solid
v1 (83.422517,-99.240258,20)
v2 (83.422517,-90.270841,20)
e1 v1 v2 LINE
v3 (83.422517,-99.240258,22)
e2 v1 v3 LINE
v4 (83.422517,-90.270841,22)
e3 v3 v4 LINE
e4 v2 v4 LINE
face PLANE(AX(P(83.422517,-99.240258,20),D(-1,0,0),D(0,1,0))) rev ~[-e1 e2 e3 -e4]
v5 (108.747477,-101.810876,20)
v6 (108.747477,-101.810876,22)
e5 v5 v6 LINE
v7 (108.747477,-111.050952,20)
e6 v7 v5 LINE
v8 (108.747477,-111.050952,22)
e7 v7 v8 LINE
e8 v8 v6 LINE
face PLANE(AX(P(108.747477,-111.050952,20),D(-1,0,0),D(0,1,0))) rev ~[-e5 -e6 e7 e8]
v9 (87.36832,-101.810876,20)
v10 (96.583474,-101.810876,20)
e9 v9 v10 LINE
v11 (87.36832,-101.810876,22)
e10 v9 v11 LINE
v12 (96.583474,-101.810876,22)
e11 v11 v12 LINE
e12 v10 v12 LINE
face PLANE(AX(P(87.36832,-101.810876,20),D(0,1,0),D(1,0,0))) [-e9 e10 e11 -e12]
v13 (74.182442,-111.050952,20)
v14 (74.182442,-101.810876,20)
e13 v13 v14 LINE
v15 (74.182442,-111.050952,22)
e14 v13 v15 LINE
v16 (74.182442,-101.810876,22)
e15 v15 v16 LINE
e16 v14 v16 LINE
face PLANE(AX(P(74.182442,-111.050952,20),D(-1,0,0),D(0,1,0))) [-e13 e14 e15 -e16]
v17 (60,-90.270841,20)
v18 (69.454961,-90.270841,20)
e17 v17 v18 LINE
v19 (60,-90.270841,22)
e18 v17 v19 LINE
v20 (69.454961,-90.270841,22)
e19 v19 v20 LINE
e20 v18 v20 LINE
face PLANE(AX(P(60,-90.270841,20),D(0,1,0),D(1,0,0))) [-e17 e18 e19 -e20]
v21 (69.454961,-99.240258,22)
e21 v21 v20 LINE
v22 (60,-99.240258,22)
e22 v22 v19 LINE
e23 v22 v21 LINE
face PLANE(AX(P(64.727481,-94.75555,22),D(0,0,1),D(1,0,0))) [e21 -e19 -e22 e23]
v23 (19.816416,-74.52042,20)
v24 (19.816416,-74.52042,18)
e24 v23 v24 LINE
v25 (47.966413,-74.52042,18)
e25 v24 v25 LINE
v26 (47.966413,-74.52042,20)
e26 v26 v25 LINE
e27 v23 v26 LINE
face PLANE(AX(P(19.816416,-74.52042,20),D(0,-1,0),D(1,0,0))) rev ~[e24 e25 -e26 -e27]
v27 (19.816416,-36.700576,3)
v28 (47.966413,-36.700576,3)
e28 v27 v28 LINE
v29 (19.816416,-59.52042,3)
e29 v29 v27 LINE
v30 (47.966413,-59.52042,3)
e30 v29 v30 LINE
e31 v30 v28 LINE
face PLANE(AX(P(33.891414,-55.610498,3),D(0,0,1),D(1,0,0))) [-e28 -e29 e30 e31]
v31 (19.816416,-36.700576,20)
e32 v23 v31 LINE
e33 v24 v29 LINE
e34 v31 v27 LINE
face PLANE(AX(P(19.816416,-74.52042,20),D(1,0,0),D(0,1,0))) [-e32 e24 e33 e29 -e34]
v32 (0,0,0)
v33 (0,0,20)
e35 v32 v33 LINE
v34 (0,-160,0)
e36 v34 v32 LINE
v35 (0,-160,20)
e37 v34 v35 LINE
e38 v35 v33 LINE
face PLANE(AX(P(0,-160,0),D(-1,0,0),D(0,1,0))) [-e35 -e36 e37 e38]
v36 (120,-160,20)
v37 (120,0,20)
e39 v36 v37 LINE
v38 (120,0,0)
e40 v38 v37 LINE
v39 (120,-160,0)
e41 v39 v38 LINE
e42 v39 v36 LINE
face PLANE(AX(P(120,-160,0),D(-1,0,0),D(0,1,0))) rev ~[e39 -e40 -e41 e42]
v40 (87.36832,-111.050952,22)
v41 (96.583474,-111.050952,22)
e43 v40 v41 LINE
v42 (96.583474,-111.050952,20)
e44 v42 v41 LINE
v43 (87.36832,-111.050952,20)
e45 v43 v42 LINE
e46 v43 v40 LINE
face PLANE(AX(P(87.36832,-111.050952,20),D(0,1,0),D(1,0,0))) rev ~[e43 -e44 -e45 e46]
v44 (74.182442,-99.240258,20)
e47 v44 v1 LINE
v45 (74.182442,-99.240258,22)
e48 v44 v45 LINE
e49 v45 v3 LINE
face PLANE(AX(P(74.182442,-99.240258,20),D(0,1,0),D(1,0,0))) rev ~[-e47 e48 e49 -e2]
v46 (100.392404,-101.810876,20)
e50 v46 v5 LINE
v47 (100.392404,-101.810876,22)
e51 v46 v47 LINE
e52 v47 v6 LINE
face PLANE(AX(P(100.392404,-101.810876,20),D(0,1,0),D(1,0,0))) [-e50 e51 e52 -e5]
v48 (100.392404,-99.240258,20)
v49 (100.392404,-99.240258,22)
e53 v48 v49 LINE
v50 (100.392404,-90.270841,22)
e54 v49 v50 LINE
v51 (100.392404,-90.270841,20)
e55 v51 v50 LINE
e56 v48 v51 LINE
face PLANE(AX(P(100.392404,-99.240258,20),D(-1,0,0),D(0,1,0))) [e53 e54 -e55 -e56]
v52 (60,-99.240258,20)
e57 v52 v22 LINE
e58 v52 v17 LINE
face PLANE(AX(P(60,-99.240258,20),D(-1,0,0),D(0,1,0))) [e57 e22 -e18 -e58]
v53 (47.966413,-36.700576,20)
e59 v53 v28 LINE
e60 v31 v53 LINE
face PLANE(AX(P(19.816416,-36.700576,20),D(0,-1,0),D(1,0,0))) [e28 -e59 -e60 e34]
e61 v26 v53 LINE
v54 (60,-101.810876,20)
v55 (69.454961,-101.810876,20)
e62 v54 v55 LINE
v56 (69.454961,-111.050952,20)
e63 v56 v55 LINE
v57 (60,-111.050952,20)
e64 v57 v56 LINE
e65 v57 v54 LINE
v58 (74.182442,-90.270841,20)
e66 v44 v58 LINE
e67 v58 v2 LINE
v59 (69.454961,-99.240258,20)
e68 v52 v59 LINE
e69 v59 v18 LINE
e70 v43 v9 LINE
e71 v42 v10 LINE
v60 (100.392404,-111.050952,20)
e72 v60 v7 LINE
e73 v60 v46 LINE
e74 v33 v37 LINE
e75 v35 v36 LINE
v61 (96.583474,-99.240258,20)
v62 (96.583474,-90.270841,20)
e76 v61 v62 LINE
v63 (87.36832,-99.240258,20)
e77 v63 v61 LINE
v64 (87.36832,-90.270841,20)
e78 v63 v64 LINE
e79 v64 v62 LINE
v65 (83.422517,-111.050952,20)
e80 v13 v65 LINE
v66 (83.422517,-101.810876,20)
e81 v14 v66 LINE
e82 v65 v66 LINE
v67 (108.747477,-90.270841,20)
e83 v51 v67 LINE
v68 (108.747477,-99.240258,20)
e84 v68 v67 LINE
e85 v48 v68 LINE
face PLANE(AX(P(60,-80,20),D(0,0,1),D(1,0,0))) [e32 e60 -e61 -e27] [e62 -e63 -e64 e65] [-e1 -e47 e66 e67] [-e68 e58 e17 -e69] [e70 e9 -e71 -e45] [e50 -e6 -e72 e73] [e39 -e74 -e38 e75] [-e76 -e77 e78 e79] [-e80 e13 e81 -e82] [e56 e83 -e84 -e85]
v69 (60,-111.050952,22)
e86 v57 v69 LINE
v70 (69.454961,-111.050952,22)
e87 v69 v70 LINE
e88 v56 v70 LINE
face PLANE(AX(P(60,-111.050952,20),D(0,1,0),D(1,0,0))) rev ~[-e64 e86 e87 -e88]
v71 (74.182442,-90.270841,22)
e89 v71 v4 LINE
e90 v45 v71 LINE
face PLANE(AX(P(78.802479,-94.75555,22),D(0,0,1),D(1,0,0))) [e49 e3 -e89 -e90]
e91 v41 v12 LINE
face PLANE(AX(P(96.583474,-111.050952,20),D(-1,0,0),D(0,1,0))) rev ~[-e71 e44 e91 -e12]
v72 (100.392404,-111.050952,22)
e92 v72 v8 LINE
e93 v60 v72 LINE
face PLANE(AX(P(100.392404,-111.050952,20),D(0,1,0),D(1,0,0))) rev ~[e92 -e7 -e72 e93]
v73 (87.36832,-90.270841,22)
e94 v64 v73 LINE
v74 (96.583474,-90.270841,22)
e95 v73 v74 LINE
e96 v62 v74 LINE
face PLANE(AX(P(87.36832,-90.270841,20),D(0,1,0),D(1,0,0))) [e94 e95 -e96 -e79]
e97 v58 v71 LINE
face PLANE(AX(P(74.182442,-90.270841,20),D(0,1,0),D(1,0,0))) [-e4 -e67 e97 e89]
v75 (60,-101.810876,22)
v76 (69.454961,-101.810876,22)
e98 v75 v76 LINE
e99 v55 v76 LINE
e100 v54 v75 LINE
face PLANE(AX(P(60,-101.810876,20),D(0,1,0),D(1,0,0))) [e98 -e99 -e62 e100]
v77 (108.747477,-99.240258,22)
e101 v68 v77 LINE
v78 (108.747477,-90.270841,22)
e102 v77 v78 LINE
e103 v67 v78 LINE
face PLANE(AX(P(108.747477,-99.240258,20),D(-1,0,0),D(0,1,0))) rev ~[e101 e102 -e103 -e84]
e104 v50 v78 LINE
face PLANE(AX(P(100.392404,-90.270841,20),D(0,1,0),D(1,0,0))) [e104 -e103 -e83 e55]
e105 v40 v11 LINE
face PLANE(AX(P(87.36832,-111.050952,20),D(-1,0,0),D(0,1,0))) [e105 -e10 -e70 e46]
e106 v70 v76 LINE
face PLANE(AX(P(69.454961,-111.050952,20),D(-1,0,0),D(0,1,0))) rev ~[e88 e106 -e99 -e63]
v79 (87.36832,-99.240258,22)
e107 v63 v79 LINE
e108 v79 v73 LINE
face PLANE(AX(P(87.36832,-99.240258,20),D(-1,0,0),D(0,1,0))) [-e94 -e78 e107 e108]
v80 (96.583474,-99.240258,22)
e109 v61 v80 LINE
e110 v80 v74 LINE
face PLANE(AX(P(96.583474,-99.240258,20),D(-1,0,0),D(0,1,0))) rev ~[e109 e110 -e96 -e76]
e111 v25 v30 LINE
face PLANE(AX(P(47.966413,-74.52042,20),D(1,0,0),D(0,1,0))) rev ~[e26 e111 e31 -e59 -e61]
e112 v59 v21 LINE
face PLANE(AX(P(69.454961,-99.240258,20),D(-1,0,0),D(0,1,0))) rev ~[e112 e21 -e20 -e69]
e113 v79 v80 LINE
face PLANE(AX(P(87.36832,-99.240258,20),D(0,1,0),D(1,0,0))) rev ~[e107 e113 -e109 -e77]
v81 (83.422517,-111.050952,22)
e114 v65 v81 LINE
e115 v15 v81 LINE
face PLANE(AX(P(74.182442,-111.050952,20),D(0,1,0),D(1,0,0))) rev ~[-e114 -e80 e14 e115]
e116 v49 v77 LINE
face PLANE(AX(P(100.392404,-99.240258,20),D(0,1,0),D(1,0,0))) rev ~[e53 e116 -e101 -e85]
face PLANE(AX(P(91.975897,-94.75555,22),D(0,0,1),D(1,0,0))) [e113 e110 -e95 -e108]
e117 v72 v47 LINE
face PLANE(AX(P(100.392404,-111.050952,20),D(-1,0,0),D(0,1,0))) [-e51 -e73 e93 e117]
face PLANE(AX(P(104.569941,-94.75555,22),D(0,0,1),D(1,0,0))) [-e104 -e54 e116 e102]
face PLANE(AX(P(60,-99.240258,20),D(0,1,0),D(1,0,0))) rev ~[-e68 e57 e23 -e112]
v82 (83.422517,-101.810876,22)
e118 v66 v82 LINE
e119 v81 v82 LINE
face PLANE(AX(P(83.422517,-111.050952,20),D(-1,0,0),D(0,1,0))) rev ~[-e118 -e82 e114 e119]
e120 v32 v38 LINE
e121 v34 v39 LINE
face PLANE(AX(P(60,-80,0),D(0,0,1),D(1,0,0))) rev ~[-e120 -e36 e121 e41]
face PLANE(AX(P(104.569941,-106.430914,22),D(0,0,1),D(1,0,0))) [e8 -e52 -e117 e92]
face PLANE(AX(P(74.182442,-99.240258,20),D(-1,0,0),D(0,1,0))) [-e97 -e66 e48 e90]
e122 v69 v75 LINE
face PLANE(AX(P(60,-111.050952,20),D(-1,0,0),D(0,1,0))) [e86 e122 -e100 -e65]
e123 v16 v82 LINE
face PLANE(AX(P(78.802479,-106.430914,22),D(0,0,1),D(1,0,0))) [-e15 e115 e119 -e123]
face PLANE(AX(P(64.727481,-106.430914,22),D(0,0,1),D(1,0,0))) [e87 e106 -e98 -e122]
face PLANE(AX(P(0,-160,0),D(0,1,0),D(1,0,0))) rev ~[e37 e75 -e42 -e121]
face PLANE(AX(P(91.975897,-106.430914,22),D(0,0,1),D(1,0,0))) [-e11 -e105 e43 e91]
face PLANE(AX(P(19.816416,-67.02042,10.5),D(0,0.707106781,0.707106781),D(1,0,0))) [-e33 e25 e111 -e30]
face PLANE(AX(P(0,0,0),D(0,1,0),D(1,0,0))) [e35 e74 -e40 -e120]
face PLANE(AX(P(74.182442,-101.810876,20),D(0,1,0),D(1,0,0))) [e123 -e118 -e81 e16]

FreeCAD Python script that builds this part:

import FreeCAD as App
import Part
import Sketcher


def edges_at(feature, points):
    """Names of the edges that pass closest to the given points."""
    edges = feature.Shape.Edges
    near = lambda p: min(range(len(edges)), key=lambda i: edges[i].distToShape(Part.Vertex(*p))[0])
    return sorted({f"Edge{near(p) + 1}" for p in points})


def add_polygon(sketch, points):
    """Adds a closed chain of lines whose ends are joined by coincident constraints."""
    first, n = sketch.GeometryCount, len(points)
    for a, b in zip(points, points[1:] + points[:1]):
        sketch.addGeometry(Part.LineSegment(App.Vector(*a, 0), App.Vector(*b, 0)), False)
    for i in range(n):
        sketch.addConstraint(Sketcher.Constraint("Coincident", first + i, 2, first + (i + 1) % n, 1))

doc = App.newDocument("Part")
body = doc.addObject("PartDesign::Body", "Body")

# Sketch on XY plane
sketch1 = body.newObject("Sketcher::SketchObject", "Sketch")
sketch1.AttachmentSupport = (doc.getObject("XY_Plane"), [""])
sketch1.MapMode = "FlatFace"
add_polygon(sketch1, [(0, 0), (0, -160), (120, -160), (120, 0)])  # lines 0-3
sketch1.addConstraint([
    Sketcher.Constraint("Vertical", 0),
    Sketcher.Constraint("Horizontal", 1),
    Sketcher.Constraint("Vertical", 2),
    Sketcher.Constraint("Horizontal", 3),
    Sketcher.Constraint("Coincident", 3, 2, -1, 1),
    Sketcher.Constraint("DistanceX", 1, 1, 1, 2, 120.0),
    Sketcher.Constraint("DistanceY", 0, 2, 0, 1, 160.0),
])
pad1 = body.newObject("PartDesign::Pad", "Pad")
pad1.Profile = sketch1
pad1.Length = 20

# Sketch on XY plane
sketch2 = body.newObject("Sketcher::SketchObject", "Sketch001")
sketch2.AttachmentSupport = (doc.getObject("XY_Plane"), [""])
sketch2.MapMode = "FlatFace"
sketch2.AttachmentOffset = App.Placement(App.Vector(0, 0, 20), App.Rotation())
add_polygon(sketch2, [(19.816416, -36.700576), (19.816416, -74.52042), (47.966413, -74.52042), (47.966413, -36.700576)])  # lines 0-3
sketch2.addConstraint([
    Sketcher.Constraint("Vertical", 0),
    Sketcher.Constraint("Horizontal", 1),
    Sketcher.Constraint("Vertical", 2),
    Sketcher.Constraint("Horizontal", 3),
    Sketcher.Constraint("DistanceX", 1, 1, 1, 2, 28.149998),
    Sketcher.Constraint("DistanceY", 0, 2, 0, 1, 37.819844),
    Sketcher.Constraint("DistanceY", 0, 2, -1, 1, 74.52042),
    Sketcher.Constraint("DistanceX", -1, 1, 0, 2, 19.816416),
])
pocket1 = body.newObject("PartDesign::Pocket", "Pocket")
pocket1.Profile = sketch2
pocket1.Length = 17
doc.recompute()

chamfer = body.newObject("PartDesign::Chamfer", "Chamfer")
chamfer.Base = (pocket1, edges_at(pocket1, [(33.891, -74.52, 3)]))
chamfer.Size = 15

# Sketch on XY plane
sketch3 = body.newObject("Sketcher::SketchObject", "Sketch002")
sketch3.AttachmentSupport = (doc.getObject("XY_Plane"), [""])
sketch3.MapMode = "FlatFace"
sketch3.AttachmentOffset = App.Placement(App.Vector(0, 0, 20), App.Rotation())
add_polygon(sketch3, [(60, -101.810876), (60, -111.050952), (69.454961, -111.050952), (69.454961, -101.810876)])  # lines 0-3
add_polygon(sketch3, [(74.182442, -101.810876), (74.182442, -111.050952), (83.422517, -111.050952), (83.422517, -101.810876)])  # lines 4-7
add_polygon(sketch3, [(87.36832, -101.810876), (87.36832, -111.050952), (96.583474, -111.050952), (96.583474, -101.810876)])  # lines 8-11
add_polygon(sketch3, [(100.392404, -101.810876), (100.392404, -111.050952), (108.747477, -111.050952), (108.747477, -101.810876)])  # lines 12-15
add_polygon(sketch3, [(60, -90.270841), (60, -99.240258), (69.454961, -99.240258), (69.454961, -90.270841)])  # lines 16-19
add_polygon(sketch3, [(74.182442, -90.270841), (74.182442, -99.240258), (83.422517, -99.240258), (83.422517, -90.270841)])  # lines 20-23
add_polygon(sketch3, [(87.36832, -90.270841), (87.36832, -99.240258), (96.583474, -99.240258), (96.583474, -90.270841)])  # lines 24-27
add_polygon(sketch3, [(100.392404, -90.270841), (100.392404, -99.240258), (108.747477, -99.240258), (108.747477, -90.270841)])  # lines 28-31
sketch3.addConstraint([
    Sketcher.Constraint("Vertical", 0),
    Sketcher.Constraint("Horizontal", 1),
    Sketcher.Constraint("Vertical", 2),
    Sketcher.Constraint("Horizontal", 3),
    Sketcher.Constraint("Vertical", 4),
    Sketcher.Constraint("Horizontal", 5),
    Sketcher.Constraint("Vertical", 6),
    Sketcher.Constraint("Horizontal", 7),
    Sketcher.Constraint("Vertical", 8),
    Sketcher.Constraint("Horizontal", 9),
    Sketcher.Constraint("Vertical", 10),
    Sketcher.Constraint("Horizontal", 11),
    Sketcher.Constraint("Vertical", 12),
    Sketcher.Constraint("Horizontal", 13),
    Sketcher.Constraint("Vertical", 14),
    Sketcher.Constraint("Horizontal", 15),
    Sketcher.Constraint("Vertical", 16),
    Sketcher.Constraint("Horizontal", 17),
    Sketcher.Constraint("Vertical", 18),
    Sketcher.Constraint("Horizontal", 19),
    Sketcher.Constraint("Vertical", 20),
    Sketcher.Constraint("Horizontal", 21),
    Sketcher.Constraint("Vertical", 22),
    Sketcher.Constraint("Horizontal", 23),
    Sketcher.Constraint("Vertical", 24),
    Sketcher.Constraint("Horizontal", 25),
    Sketcher.Constraint("Vertical", 26),
    Sketcher.Constraint("Horizontal", 27),
    Sketcher.Constraint("Vertical", 28),
    Sketcher.Constraint("Horizontal", 29),
    Sketcher.Constraint("Vertical", 30),
    Sketcher.Constraint("Horizontal", 31),
    Sketcher.Constraint("Horizontal", 1, 2, 4, 2),
    Sketcher.Constraint("Horizontal", 3, 2, 6, 2),
    Sketcher.Constraint("Horizontal", 5, 2, 8, 2),
    Sketcher.Constraint("Horizontal", 7, 2, 10, 2),
    Sketcher.Constraint("Horizontal", 9, 2, 12, 2),
    Sketcher.Constraint("Horizontal", 11, 2, 14, 2),
    Sketcher.Constraint("Horizontal", 17, 2, 20, 2),
    Sketcher.Constraint("Horizontal", 19, 2, 22, 2),
    Sketcher.Constraint("Horizontal", 21, 2, 24, 2),
    Sketcher.Constraint("Horizontal", 23, 2, 26, 2),
    Sketcher.Constraint("Horizontal", 25, 2, 28, 2),
    Sketcher.Constraint("Horizontal", 27, 2, 30, 2),
    Sketcher.Constraint("Vertical", 3, 2, 16, 2),
    Sketcher.Constraint("Vertical", 2, 2, 17, 2),
    Sketcher.Constraint("Vertical", 7, 2, 20, 2),
    Sketcher.Constraint("Vertical", 6, 2, 21, 2),
    Sketcher.Constraint("Vertical", 11, 2, 24, 2),
    Sketcher.Constraint("Vertical", 10, 2, 25, 2),
    Sketcher.Constraint("Vertical", 15, 2, 28, 2),
    Sketcher.Constraint("Vertical", 14, 2, 29, 2),
    Sketcher.Constraint("Equal", 23, 0),
    Sketcher.Constraint("DistanceX", -1, 1, 0, 2, 60.0),
    Sketcher.Constraint("DistanceX", 1, 1, 1, 2, 9.454961),
    Sketcher.Constraint("DistanceX", 5, 1, 5, 2, 9.240076),
    Sketcher.Constraint("DistanceX", 9, 1, 9, 2, 9.215154),
    Sketcher.Constraint("DistanceX", 13, 1, 13, 2, 8.355073),
    Sketcher.Constraint("DistanceY", 16, 2, 16, 1, 8.969417),
    Sketcher.Constraint("DistanceY", 0, 2, -1, 1, 111.050952),
    Sketcher.Constraint("DistanceX", -1, 1, 4, 2, 74.182442),
    Sketcher.Constraint("DistanceX", -1, 1, 8, 2, 87.36832),
    Sketcher.Constraint("DistanceY", 16, 2, -1, 1, 99.240258),
    Sketcher.Constraint("DistanceX", 9, 2, 12, 2, 3.80893),
])
pad2 = body.newObject("PartDesign::Pad", "Pad001")
pad2.Profile = sketch3
pad2.Length = 2

doc.recompute()
